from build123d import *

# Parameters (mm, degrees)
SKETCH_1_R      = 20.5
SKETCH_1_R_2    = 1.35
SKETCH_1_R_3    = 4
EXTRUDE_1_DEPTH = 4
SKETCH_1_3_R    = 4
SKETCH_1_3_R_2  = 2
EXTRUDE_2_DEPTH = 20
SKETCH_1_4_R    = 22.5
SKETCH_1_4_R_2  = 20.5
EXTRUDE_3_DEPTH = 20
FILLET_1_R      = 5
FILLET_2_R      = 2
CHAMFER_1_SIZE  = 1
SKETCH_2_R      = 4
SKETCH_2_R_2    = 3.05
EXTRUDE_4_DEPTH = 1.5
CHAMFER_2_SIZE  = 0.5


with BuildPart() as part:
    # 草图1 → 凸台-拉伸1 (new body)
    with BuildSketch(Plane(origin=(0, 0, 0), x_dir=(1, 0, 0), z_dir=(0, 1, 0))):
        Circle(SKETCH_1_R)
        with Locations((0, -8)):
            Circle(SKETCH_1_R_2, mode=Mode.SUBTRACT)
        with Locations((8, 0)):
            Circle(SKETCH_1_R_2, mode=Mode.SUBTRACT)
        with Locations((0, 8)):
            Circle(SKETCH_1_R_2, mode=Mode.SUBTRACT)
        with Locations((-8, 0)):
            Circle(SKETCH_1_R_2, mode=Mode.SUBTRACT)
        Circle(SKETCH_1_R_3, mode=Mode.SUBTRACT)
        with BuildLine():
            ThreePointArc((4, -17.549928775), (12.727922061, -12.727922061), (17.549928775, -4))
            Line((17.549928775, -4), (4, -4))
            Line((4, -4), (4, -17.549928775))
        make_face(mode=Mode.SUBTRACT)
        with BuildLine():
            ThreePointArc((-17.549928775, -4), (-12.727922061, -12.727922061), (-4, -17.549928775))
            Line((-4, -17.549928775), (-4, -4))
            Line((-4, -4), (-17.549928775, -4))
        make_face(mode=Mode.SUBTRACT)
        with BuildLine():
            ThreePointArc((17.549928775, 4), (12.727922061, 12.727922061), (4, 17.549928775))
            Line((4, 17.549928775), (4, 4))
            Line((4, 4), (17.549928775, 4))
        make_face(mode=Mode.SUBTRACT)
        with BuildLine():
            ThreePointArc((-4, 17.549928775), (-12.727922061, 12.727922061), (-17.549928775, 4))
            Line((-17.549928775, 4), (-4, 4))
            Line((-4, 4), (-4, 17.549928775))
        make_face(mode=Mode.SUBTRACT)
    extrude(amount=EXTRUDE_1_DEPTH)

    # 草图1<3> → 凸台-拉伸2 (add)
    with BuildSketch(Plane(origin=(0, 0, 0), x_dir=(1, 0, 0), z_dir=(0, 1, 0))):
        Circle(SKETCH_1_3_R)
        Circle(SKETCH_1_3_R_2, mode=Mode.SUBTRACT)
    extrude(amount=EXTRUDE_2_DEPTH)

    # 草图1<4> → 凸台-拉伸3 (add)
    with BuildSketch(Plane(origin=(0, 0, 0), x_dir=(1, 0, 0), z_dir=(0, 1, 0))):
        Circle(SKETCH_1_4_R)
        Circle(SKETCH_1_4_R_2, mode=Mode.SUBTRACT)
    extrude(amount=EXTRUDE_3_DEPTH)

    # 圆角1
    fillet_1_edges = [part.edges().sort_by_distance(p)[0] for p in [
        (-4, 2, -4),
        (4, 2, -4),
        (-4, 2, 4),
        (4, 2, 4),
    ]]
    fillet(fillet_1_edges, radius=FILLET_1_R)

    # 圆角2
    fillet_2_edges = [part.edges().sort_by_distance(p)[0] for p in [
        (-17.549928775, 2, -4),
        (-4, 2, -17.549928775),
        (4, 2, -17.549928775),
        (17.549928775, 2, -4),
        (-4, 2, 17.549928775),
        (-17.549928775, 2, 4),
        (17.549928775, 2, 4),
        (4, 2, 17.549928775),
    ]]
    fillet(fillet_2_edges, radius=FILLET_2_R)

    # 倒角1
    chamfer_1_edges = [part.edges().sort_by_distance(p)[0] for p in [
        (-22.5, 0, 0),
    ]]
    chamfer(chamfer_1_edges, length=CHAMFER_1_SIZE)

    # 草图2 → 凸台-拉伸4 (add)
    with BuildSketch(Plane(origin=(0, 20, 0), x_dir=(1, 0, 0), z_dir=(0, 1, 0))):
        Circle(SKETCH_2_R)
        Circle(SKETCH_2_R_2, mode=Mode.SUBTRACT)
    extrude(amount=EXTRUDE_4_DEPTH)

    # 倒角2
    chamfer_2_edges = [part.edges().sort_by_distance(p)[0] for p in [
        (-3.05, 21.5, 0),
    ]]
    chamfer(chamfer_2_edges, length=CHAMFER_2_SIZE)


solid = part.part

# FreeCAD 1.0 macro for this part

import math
import FreeCAD as App
import Part
import Sketcher
from FreeCAD import Vector
Q = App.Units.Quantity


def edges_at(feature, points):
    """Names of the edges that pass closest to the given points."""
    edges = feature.Shape.Edges
    near = lambda p: min(range(len(edges)), key=lambda i: edges[i].distToShape(Part.Vertex(*p))[0])
    return sorted({f"Edge{near(p) + 1}" for p in points})

doc = App.newDocument("Part")
body = doc.addObject("PartDesign::Body", "Body")

sketch1 = doc.addObject("Sketcher::SketchObject", "Sketch")
body.addObject(sketch1)
sketch1.AttachmentSupport = (doc.XZ_Plane, [""])
sketch1.MapMode = "FlatFace"
sketch1.addGeometry(Part.Circle(Vector(0, 0, 0), Vector(0, 0, 1), 20.5), False)
sketch1.addGeometry(Part.ArcOfCircle(Part.Circle(Vector(0, 0, 0), Vector(0, 0, 1), 18), math.radians(103), math.radians(167)), False)
sketch1.addGeometry(Part.LineSegment(Vector(-17.5, 4, 0), Vector(-4, 4, 0)), False)
sketch1.addGeometry(Part.LineSegment(Vector(-4, 4, 0), Vector(-4, 17.5, 0)), False)
sketch1.addGeometry(Part.Circle(Vector(0, 8, 0), Vector(0, 0, 1), 1.4), False)
sketch1.addGeometry(Part.ArcOfCircle(Part.Circle(Vector(0, 0, 0), Vector(0, 0, 1), 18), math.radians(13), math.radians(77)), False)
sketch1.addGeometry(Part.LineSegment(Vector(4, 17.5, 0), Vector(4, 4, 0)), False)
sketch1.addGeometry(Part.LineSegment(Vector(4, 4, 0), Vector(17.5, 4, 0)), False)
sketch1.addGeometry(Part.Circle(Vector(-8, 0, 0), Vector(0, 0, 1), 1.4), False)
sketch1.addGeometry(Part.Circle(Vector(0, -8, 0), Vector(0, 0, 1), 1.4), False)
sketch1.addGeometry(Part.ArcOfCircle(Part.Circle(Vector(0, 0, 0), Vector(0, 0, 1), 18), math.radians(-167), math.radians(-103)), False)
sketch1.addGeometry(Part.LineSegment(Vector(-4, -17.5, 0), Vector(-4, -4, 0)), False)
sketch1.addGeometry(Part.LineSegment(Vector(-4, -4, 0), Vector(-17.5, -4, 0)), False)
sketch1.addGeometry(Part.Circle(Vector(0, 0, 0), Vector(0, 0, 1), 4), False)
sketch1.addGeometry(Part.Circle(Vector(8, 0, 0), Vector(0, 0, 1), 1.4), False)
sketch1.addGeometry(Part.ArcOfCircle(Part.Circle(Vector(0, 0, 0), Vector(0, 0, 1), 18), math.radians(-77), math.radians(-13)), False)
sketch1.addGeometry(Part.LineSegment(Vector(17.5, -4, 0), Vector(4, -4, 0)), False)
sketch1.addGeometry(Part.LineSegment(Vector(4, -4, 0), Vector(4, -17.5, 0)), False)
sketch1.addConstraint(Sketcher.Constraint("Coincident", 1, 2, 2, 1))
sketch1.addConstraint(Sketcher.Constraint("Coincident", 2, 2, 3, 1))
sketch1.addConstraint(Sketcher.Constraint("Coincident", 3, 2, 1, 1))
sketch1.addConstraint(Sketcher.Constraint("Coincident", 5, 2, 6, 1))
sketch1.addConstraint(Sketcher.Constraint("Coincident", 6, 2, 7, 1))
sketch1.addConstraint(Sketcher.Constraint("Coincident", 7, 2, 5, 1))
sketch1.addConstraint(Sketcher.Constraint("Coincident", 10, 2, 11, 1))
sketch1.addConstraint(Sketcher.Constraint("Coincident", 11, 2, 12, 1))
sketch1.addConstraint(Sketcher.Constraint("Coincident", 12, 2, 10, 1))
sketch1.addConstraint(Sketcher.Constraint("Coincident", 15, 2, 16, 1))
sketch1.addConstraint(Sketcher.Constraint("Coincident", 16, 2, 17, 1))
sketch1.addConstraint(Sketcher.Constraint("Coincident", 17, 2, 15, 1))
sketch1.addConstraint(Sketcher.Constraint("Horizontal", 2))
sketch1.addConstraint(Sketcher.Constraint("Vertical", 3))
sketch1.addConstraint(Sketcher.Constraint("Vertical", 6))
sketch1.addConstraint(Sketcher.Constraint("Horizontal", 7))
sketch1.addConstraint(Sketcher.Constraint("Vertical", 11))
sketch1.addConstraint(Sketcher.Constraint("Horizontal", 12))
sketch1.addConstraint(Sketcher.Constraint("Horizontal", 16))
sketch1.addConstraint(Sketcher.Constraint("Vertical", 17))
sketch1.addConstraint(Sketcher.Constraint("Coincident", 0, 3, -1, 1))
sketch1.addConstraint(Sketcher.Constraint("Coincident", 1, 3, -1, 1))
sketch1.addConstraint(Sketcher.Constraint("Coincident", 5, 3, -1, 1))
sketch1.addConstraint(Sketcher.Constraint("Coincident", 10, 3, -1, 1))
sketch1.addConstraint(Sketcher.Constraint("Coincident", 13, 3, -1, 1))
sketch1.addConstraint(Sketcher.Constraint("Coincident", 15, 3, -1, 1))
sketch1.addConstraint(Sketcher.Constraint("Equal", 1, 5))
sketch1.addConstraint(Sketcher.Constraint("Equal", 4, 8))
sketch1.addConstraint(Sketcher.Constraint("Equal", 8, 9))
sketch1.addConstraint(Sketcher.Constraint("Equal", 5, 10))
sketch1.addConstraint(Sketcher.Constraint("Equal", 9, 14))
sketch1.addConstraint(Sketcher.Constraint("Equal", 10, 15))
sketch1.addConstraint(Sketcher.Constraint("Symmetric", 4, 3, 9, 3, -1, 1))
sketch1.addConstraint(Sketcher.Constraint("Symmetric", 8, 3, 14, 3, -1, 1))
sketch1.addConstraint(Sketcher.Constraint("Symmetric", 6, 2, 11, 2, -1, 1))
sketch1.addConstraint(Sketcher.Constraint("Symmetric", 2, 2, 16, 2, -1, 1))
sketch1.addConstraint(Sketcher.Constraint("Symmetric", 2, 2, 6, 2, -2))
sketch1.addConstraint(Sketcher.Constraint("PointOnObject", 4, 3, -2))
sketch1.addConstraint(Sketcher.Constraint("PointOnObject", 8, 3, -1))
sketch1.addConstraint(Sketcher.Constraint("Equal", 16, 3))
sketch1.addConstraint(Sketcher.Constraint("Diameter", 0, Q("41 mm")))
sketch1.addConstraint(Sketcher.Constraint("Diameter", 13, Q("8 mm")))
sketch1.addConstraint(Sketcher.Constraint("Radius", 1, Q("18 mm")))
sketch1.addConstraint(Sketcher.Constraint("Diameter", 4, Q("2.7 mm")))
sketch1.addConstraint(Sketcher.Constraint("DistanceY", -1, 1, 4, 3, Q("8 mm")))
sketch1.addConstraint(Sketcher.Constraint("DistanceX", 8, 3, -1, 1, Q("8 mm")))
sketch1.addConstraint(Sketcher.Constraint("DistanceY", -1, 1, 1, 2, Q("4 mm")))
pad1 = doc.addObject("PartDesign::Pad", "Pad")
body.addObject(pad1)
pad1.Profile = sketch1
pad1.Length = 4
pad1.Reversed = True

sketch2 = doc.addObject("Sketcher::SketchObject", "Sketch001")
body.addObject(sketch2)
sketch2.AttachmentSupport = (doc.XZ_Plane, [""])
sketch2.MapMode = "FlatFace"
sketch2.addGeometry(Part.Circle(Vector(0, 0, 0), Vector(0, 0, 1), 4), False)
sketch2.addGeometry(Part.Circle(Vector(0, 0, 0), Vector(0, 0, 1), 2), False)
sketch2.addConstraint(Sketcher.Constraint("Coincident", 0, 3, -1, 1))
sketch2.addConstraint(Sketcher.Constraint("Coincident", 1, 3, -1, 1))
sketch2.addConstraint(Sketcher.Constraint("Diameter", 0, Q("8 mm")))
sketch2.addConstraint(Sketcher.Constraint("Diameter", 1, Q("4 mm")))
pad2 = doc.addObject("PartDesign::Pad", "Pad001")
body.addObject(pad2)
pad2.Profile = sketch2
pad2.Length = 20
pad2.Reversed = True

sketch3 = doc.addObject("Sketcher::SketchObject", "Sketch002")
body.addObject(sketch3)
sketch3.AttachmentSupport = (doc.XZ_Plane, [""])
sketch3.MapMode = "FlatFace"
sketch3.addGeometry(Part.Circle(Vector(0, 0, 0), Vector(0, 0, 1), 22), False)
sketch3.addGeometry(Part.Circle(Vector(0, 0, 0), Vector(0, 0, 1), 20), False)
sketch3.addConstraint(Sketcher.Constraint("Coincident", 0, 3, -1, 1))
sketch3.addConstraint(Sketcher.Constraint("Coincident", 1, 3, -1, 1))
sketch3.addConstraint(Sketcher.Constraint("Diameter", 0, Q("45 mm")))
sketch3.addConstraint(Sketcher.Constraint("Diameter", 1, Q("41 mm")))
pad3 = doc.addObject("PartDesign::Pad", "Pad002")
body.addObject(pad3)
pad3.Profile = sketch3
pad3.Length = 20
pad3.Reversed = True
doc.recompute()

fillet = doc.addObject("PartDesign::Fillet", "Fillet")
body.addObject(fillet)
fillet.Base = (pad3, edges_at(pad3, [
    (-4, 2, -4),
    (4, 2, -4),
    (-4, 2, 4),
    (4, 2, 4),
]))
fillet.Radius = 5
doc.recompute()

fillet2 = doc.addObject("PartDesign::Fillet", "Fillet001")
body.addObject(fillet2)
fillet2.Base = (fillet, edges_at(fillet, [
    (-17.55, 2, -4),
    (-4, 2, -17.55),
    (4, 2, -17.55),
    (17.55, 2, -4),
    (-4, 2, 17.55),
    (-17.55, 2, 4),
    (17.55, 2, 4),
    (4, 2, 17.55),
]))
fillet2.Radius = 2
doc.recompute()

chamfer = doc.addObject("PartDesign::Chamfer", "Chamfer")
body.addObject(chamfer)
chamfer.Base = (fillet2, edges_at(fillet2, [(-22.5, 0, 0)]))
chamfer.Size = 1

sketch4 = doc.addObject("Sketcher::SketchObject", "Sketch003")
body.addObject(sketch4)
sketch4.AttachmentSupport = (doc.XZ_Plane, [""])
sketch4.MapMode = "FlatFace"
sketch4.AttachmentOffset = App.Placement(Vector(0, 0, -20), App.Rotation())
sketch4.addGeometry(Part.Circle(Vector(0, 0, 0), Vector(0, 0, 1), 4), False)
sketch4.addGeometry(Part.Circle(Vector(0, 0, 0), Vector(0, 0, 1), 3), False)
sketch4.addConstraint(Sketcher.Constraint("Coincident", 0, 3, -1, 1))
sketch4.addConstraint(Sketcher.Constraint("Coincident", 1, 3, -1, 1))
sketch4.addConstraint(Sketcher.Constraint("Diameter", 0, Q("8 mm")))
sketch4.addConstraint(Sketcher.Constraint("Diameter", 1, Q("6.1 mm")))
pad4 = doc.addObject("PartDesign::Pad", "Pad003")
body.addObject(pad4)
pad4.Profile = sketch4
pad4.Length = 1.5
pad4.Reversed = True
doc.recompute()

chamfer2 = doc.addObject("PartDesign::Chamfer", "Chamfer001")
body.addObject(chamfer2)
chamfer2.Base = (pad4, edges_at(pad4, [(-3.05, 21.5, 0)]))
chamfer2.Size = 0.5

doc.recompute()
